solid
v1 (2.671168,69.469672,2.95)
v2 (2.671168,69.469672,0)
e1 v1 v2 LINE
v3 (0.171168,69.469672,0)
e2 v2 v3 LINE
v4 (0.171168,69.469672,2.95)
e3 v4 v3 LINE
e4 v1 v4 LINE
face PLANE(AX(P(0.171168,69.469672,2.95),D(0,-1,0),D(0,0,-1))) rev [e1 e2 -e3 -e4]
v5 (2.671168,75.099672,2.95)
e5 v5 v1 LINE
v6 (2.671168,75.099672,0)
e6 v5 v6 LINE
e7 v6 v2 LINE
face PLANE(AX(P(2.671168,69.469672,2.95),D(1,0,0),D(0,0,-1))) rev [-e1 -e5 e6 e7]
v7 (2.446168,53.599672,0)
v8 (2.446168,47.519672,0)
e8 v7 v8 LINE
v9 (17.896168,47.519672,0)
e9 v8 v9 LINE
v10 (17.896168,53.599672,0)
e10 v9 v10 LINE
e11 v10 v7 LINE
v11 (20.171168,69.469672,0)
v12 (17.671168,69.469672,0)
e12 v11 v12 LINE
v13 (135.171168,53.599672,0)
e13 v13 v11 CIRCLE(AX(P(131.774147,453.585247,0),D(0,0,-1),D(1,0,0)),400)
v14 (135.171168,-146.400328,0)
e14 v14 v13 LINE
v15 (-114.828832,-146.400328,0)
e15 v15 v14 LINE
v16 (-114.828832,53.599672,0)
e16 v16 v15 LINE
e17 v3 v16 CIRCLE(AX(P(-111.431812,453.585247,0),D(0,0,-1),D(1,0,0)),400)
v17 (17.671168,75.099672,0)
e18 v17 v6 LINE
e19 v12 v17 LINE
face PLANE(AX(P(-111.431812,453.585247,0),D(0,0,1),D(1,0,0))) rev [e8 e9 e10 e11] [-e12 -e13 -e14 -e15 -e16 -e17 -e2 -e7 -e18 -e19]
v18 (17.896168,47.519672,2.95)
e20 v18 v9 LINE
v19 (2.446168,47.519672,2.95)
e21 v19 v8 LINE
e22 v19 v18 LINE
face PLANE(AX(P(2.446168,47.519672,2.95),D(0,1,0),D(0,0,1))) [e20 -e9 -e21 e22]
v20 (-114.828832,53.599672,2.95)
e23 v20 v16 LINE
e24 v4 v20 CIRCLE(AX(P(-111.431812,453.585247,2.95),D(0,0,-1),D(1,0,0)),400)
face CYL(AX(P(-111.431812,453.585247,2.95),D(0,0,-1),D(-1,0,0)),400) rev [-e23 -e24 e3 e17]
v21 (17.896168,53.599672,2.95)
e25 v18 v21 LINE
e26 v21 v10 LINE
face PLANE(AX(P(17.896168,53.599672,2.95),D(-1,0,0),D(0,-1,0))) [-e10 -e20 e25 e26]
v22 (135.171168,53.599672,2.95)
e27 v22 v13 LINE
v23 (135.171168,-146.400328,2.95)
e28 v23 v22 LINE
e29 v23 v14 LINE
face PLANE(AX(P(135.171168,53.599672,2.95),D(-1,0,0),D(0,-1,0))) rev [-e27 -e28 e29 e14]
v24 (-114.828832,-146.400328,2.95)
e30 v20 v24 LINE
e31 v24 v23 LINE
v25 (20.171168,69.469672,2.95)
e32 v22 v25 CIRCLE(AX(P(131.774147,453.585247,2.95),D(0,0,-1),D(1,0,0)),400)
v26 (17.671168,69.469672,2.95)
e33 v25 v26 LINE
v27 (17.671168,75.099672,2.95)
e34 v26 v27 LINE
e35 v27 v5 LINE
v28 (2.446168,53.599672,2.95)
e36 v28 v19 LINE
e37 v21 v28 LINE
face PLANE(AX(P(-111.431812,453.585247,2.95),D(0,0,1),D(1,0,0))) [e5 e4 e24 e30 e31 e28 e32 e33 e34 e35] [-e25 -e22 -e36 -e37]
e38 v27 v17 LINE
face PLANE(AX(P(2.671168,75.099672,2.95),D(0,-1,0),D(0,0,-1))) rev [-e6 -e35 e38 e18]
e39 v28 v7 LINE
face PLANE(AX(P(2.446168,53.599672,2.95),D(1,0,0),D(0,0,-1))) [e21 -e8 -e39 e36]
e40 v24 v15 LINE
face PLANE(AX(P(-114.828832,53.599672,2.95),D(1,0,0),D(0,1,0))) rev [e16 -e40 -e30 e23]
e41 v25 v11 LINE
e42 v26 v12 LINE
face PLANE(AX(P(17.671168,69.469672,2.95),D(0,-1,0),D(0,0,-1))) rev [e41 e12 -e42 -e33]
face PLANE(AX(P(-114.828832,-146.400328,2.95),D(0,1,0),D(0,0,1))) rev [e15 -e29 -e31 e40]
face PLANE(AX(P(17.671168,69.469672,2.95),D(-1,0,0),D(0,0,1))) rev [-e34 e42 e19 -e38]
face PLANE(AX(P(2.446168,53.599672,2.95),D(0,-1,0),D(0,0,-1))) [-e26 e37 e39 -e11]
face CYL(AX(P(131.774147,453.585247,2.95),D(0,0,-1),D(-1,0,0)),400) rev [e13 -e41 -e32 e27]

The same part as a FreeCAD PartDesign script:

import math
import FreeCAD as App
import Part
import Sketcher

V = App.Vector
Q = App.Units.Quantity

doc = App.newDocument("Part")
body = doc.addObject("PartDesign::Body", "Body")

sketch1 = doc.addObject("Sketcher::SketchObject", "Sketch")
body.addObject(sketch1)
sketch1.AttachmentSupport = (doc.XY_Plane, [""])
sketch1.MapMode = "FlatFace"
sketch1.addGeometry([
    Part.LineSegment(V(2.7, 69.5, 0), V(0.2, 69.5, 0)),
    Part.ArcOfCircle(Part.Circle(V(-111.4, 453.6, 0), V(0, 0, 1), 400), math.radians(-90.49), math.radians(-73.8)),
    Part.LineSegment(V(-114.8, 53.6, 0), V(-114.8, -146.4, 0)),
    Part.LineSegment(V(-114.8, -146.4, 0), V(135.2, -146.4, 0)),
    Part.LineSegment(V(135.2, -146.4, 0), V(135.2, 53.6, 0)),
    Part.ArcOfCircle(Part.Circle(V(131.8, 453.6, 0), V(0, 0, 1), 400), math.radians(-106.2), math.radians(-89.51)),
    Part.LineSegment(V(20.2, 69.5, 0), V(17.7, 69.5, 0)),
    Part.LineSegment(V(17.7, 69.5, 0), V(17.7, 75.1, 0)),
    Part.LineSegment(V(17.7, 75.1, 0), V(2.7, 75.1, 0)),
    Part.LineSegment(V(2.7, 75.1, 0), V(2.7, 69.5, 0)),
    Part.LineSegment(V(2.4, 47.5, 0), V(2.4, 53.6, 0)),
    Part.LineSegment(V(2.4, 53.6, 0), V(17.9, 53.6, 0)),
    Part.LineSegment(V(17.9, 53.6, 0), V(17.9, 47.5, 0)),
    Part.LineSegment(V(17.9, 47.5, 0), V(2.4, 47.5, 0)),
], False)
sketch1.addConstraint([
    Sketcher.Constraint("Coincident", 0, 2, 1, 2),
    Sketcher.Constraint("Coincident", 1, 1, 2, 1),
    Sketcher.Constraint("Coincident", 2, 2, 3, 1),
    Sketcher.Constraint("Coincident", 3, 2, 4, 1),
    Sketcher.Constraint("Coincident", 4, 2, 5, 2),
    Sketcher.Constraint("Coincident", 5, 1, 6, 1),
    Sketcher.Constraint("Coincident", 6, 2, 7, 1),
    Sketcher.Constraint("Coincident", 7, 2, 8, 1),
    Sketcher.Constraint("Coincident", 8, 2, 9, 1),
    Sketcher.Constraint("Coincident", 9, 2, 0, 1),
    Sketcher.Constraint("Coincident", 10, 2, 11, 1),
    Sketcher.Constraint("Coincident", 11, 2, 12, 1),
    Sketcher.Constraint("Coincident", 12, 2, 13, 1),
    Sketcher.Constraint("Coincident", 13, 2, 10, 1),
    Sketcher.Constraint("Horizontal", 0),
    Sketcher.Constraint("Vertical", 2),
    Sketcher.Constraint("Horizontal", 3),
    Sketcher.Constraint("Vertical", 4),
    Sketcher.Constraint("Horizontal", 6),
    Sketcher.Constraint("Vertical", 7),
    Sketcher.Constraint("Horizontal", 8),
    Sketcher.Constraint("Vertical", 9),
    Sketcher.Constraint("Vertical", 10),
    Sketcher.Constraint("Horizontal", 11),
    Sketcher.Constraint("Vertical", 12),
    Sketcher.Constraint("Horizontal", 13),
    Sketcher.Constraint("Equal", 1, 5),
    Sketcher.Constraint("Horizontal", 1, 3, 5, 3),
    Sketcher.Constraint("Horizontal", 1, 1, 4, 2),
    Sketcher.Constraint("Horizontal", 0, 2, 5, 1),
    Sketcher.Constraint("Horizontal", 4, 2, 10, 2),
    Sketcher.Constraint("Equal", 0, 6),
    Sketcher.Constraint("Radius", 1, Q("400 mm")),
    Sketcher.Constraint("DistanceX", 3, 1, 3, 2, Q("250 mm")),
    Sketcher.Constraint("DistanceX", 8, 2, 8, 1, Q("15 mm")),
    Sketcher.Constraint("DistanceY", 2, 2, 2, 1, Q("200 mm")),
    Sketcher.Constraint("DistanceX", 0, 2, 0, 1, Q("2.5 mm")),
    Sketcher.Constraint("DistanceX", 11, 1, 11, 2, Q("15.45 mm")),
    Sketcher.Constraint("DistanceY", 7, 1, 7, 2, Q("5.63 mm")),
    Sketcher.Constraint("DistanceY", 10, 1, 10, 2, Q("6.08 mm")),
    Sketcher.Constraint("DistanceY", 4, 2, 7, 2, Q("21.5 mm")),
    Sketcher.Constraint("DistanceX", 10, 2, 9, 2, Q("0.225 mm")),
    Sketcher.Constraint("DistanceX", 1, 3, -1, 1, Q("111.431812 mm")),
    Sketcher.Constraint("DistanceY", -1, 1, 0, 2, Q("69.469672 mm")),
])
pad1 = doc.addObject("PartDesign::Pad", "Pad")
body.addObject(pad1)
pad1.Profile = sketch1
pad1.Length = 2.95

doc.recompute()
